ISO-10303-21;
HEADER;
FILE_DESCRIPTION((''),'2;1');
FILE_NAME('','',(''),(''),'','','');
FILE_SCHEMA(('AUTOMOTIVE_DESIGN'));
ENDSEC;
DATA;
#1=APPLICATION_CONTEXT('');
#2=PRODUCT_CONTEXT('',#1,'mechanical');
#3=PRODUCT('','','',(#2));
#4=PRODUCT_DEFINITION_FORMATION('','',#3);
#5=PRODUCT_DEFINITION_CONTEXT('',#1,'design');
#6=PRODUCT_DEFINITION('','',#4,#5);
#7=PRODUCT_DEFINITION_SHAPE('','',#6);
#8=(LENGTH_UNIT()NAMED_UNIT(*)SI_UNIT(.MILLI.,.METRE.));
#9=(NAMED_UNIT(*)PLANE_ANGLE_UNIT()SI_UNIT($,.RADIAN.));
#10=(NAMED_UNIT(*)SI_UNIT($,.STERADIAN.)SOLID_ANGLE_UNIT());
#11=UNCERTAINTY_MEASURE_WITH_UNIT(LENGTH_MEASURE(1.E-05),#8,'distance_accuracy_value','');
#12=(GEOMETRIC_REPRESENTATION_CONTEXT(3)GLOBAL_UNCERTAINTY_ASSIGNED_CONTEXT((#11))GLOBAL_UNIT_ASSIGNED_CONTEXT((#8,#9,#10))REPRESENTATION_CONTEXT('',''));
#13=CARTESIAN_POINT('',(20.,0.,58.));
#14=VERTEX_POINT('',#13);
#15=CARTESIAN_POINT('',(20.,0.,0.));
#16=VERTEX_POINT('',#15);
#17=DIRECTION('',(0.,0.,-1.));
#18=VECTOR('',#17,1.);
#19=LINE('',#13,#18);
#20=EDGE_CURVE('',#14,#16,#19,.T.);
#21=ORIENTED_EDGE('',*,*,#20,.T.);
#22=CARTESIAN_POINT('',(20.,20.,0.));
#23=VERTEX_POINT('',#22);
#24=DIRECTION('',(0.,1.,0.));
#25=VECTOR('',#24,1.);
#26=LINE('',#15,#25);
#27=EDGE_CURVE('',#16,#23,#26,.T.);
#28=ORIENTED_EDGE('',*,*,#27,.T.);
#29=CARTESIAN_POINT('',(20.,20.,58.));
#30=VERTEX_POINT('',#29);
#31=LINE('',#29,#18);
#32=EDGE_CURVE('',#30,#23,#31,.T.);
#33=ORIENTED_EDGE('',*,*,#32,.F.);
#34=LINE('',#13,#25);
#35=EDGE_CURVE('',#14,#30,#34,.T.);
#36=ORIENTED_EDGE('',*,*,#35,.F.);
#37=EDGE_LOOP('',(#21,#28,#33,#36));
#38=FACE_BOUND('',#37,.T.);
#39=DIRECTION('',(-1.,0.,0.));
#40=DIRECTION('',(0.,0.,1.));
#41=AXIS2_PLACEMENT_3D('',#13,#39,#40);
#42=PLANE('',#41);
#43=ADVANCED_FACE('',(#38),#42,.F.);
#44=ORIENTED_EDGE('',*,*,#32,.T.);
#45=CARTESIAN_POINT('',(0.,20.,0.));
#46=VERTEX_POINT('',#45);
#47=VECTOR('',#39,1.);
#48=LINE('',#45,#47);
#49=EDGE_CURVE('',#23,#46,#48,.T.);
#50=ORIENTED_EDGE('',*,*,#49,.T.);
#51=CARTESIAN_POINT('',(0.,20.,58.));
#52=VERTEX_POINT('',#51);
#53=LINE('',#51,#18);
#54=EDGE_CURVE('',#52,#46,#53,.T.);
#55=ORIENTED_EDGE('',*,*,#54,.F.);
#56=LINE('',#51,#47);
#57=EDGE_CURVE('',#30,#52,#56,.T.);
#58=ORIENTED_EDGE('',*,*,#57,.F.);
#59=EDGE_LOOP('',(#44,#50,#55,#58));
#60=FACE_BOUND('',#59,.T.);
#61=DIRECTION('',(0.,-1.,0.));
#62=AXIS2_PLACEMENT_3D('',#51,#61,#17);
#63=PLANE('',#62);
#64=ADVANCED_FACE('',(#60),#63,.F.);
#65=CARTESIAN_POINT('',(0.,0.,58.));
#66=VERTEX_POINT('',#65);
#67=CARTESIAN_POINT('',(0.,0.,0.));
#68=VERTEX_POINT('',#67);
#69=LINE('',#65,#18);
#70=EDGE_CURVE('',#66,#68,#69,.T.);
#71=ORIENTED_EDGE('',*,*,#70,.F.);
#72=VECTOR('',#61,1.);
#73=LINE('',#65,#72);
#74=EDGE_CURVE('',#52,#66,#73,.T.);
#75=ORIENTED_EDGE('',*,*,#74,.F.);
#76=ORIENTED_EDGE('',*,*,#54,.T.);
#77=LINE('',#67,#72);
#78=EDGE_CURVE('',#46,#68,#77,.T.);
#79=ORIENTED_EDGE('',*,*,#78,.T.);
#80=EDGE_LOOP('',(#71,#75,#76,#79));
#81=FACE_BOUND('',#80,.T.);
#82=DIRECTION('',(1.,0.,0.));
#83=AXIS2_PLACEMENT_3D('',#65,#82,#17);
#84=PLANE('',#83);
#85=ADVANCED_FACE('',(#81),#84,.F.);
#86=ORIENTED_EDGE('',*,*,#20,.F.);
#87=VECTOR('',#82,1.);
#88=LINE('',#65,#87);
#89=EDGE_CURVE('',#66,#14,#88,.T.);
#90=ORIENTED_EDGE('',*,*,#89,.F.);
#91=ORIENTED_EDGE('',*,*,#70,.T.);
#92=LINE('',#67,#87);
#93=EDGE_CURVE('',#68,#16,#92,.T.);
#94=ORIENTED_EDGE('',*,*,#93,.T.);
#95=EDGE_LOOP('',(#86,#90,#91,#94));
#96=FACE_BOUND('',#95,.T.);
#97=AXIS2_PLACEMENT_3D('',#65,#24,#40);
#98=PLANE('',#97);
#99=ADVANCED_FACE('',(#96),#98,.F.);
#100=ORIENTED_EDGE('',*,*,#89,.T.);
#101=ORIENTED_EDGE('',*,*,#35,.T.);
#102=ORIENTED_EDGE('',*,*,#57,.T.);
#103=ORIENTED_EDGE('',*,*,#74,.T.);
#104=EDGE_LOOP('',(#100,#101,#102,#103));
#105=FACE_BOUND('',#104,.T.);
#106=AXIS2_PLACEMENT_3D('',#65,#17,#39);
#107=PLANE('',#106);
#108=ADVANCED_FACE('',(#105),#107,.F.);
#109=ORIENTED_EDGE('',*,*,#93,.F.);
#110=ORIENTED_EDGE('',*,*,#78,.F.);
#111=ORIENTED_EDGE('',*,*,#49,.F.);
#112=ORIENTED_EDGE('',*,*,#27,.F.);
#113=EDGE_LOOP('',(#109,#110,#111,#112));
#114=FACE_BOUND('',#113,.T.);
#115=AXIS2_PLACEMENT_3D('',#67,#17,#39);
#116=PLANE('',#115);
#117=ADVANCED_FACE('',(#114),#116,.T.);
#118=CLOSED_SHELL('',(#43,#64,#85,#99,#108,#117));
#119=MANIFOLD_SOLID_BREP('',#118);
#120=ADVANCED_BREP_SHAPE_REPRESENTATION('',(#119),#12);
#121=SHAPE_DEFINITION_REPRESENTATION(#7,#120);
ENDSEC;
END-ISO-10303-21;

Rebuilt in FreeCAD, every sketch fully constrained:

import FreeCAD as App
import Part
import Sketcher
from FreeCAD import Vector
Q = App.Units.Quantity


def add_polygon(sketch, points):
    """Adds a closed chain of lines whose ends are joined by coincident constraints."""
    first, n = sketch.GeometryCount, len(points)
    for a, b in zip(points, points[1:] + points[:1]):
        sketch.addGeometry(Part.LineSegment(App.Vector(*a, 0), App.Vector(*b, 0)), False)
    for i in range(n):
        sketch.addConstraint(Sketcher.Constraint("Coincident", first + i, 2, first + (i + 1) % n, 1))

doc = App.newDocument("Part")
body = doc.addObject("PartDesign::Body", "Body")

# Sketch on XY plane
sketch1 = body.newObject("Sketcher::SketchObject", "Sketch")
sketch1.AttachmentSupport = (doc.getObject("XY_Plane"), [""])
sketch1.MapMode = "FlatFace"
add_polygon(sketch1, [(0, 20), (0, 0), (20, 0), (20, 20)])  # lines 0-3
sketch1.addConstraint([
    Sketcher.Constraint("Vertical", 0),
    Sketcher.Constraint("Horizontal", 1),
    Sketcher.Constraint("Vertical", 2),
    Sketcher.Constraint("Horizontal", 3),
    Sketcher.Constraint("Coincident", 0, 2, -1, 1),
    Sketcher.Constraint("Equal", 3, 0),
    Sketcher.Constraint("DistanceX", 1, 1, 1, 2, Q("20 mm")),
])
pad1 = body.newObject("PartDesign::Pad", "Pad")
pad1.Profile = sketch1
pad1.Length = 58

doc.recompute()
